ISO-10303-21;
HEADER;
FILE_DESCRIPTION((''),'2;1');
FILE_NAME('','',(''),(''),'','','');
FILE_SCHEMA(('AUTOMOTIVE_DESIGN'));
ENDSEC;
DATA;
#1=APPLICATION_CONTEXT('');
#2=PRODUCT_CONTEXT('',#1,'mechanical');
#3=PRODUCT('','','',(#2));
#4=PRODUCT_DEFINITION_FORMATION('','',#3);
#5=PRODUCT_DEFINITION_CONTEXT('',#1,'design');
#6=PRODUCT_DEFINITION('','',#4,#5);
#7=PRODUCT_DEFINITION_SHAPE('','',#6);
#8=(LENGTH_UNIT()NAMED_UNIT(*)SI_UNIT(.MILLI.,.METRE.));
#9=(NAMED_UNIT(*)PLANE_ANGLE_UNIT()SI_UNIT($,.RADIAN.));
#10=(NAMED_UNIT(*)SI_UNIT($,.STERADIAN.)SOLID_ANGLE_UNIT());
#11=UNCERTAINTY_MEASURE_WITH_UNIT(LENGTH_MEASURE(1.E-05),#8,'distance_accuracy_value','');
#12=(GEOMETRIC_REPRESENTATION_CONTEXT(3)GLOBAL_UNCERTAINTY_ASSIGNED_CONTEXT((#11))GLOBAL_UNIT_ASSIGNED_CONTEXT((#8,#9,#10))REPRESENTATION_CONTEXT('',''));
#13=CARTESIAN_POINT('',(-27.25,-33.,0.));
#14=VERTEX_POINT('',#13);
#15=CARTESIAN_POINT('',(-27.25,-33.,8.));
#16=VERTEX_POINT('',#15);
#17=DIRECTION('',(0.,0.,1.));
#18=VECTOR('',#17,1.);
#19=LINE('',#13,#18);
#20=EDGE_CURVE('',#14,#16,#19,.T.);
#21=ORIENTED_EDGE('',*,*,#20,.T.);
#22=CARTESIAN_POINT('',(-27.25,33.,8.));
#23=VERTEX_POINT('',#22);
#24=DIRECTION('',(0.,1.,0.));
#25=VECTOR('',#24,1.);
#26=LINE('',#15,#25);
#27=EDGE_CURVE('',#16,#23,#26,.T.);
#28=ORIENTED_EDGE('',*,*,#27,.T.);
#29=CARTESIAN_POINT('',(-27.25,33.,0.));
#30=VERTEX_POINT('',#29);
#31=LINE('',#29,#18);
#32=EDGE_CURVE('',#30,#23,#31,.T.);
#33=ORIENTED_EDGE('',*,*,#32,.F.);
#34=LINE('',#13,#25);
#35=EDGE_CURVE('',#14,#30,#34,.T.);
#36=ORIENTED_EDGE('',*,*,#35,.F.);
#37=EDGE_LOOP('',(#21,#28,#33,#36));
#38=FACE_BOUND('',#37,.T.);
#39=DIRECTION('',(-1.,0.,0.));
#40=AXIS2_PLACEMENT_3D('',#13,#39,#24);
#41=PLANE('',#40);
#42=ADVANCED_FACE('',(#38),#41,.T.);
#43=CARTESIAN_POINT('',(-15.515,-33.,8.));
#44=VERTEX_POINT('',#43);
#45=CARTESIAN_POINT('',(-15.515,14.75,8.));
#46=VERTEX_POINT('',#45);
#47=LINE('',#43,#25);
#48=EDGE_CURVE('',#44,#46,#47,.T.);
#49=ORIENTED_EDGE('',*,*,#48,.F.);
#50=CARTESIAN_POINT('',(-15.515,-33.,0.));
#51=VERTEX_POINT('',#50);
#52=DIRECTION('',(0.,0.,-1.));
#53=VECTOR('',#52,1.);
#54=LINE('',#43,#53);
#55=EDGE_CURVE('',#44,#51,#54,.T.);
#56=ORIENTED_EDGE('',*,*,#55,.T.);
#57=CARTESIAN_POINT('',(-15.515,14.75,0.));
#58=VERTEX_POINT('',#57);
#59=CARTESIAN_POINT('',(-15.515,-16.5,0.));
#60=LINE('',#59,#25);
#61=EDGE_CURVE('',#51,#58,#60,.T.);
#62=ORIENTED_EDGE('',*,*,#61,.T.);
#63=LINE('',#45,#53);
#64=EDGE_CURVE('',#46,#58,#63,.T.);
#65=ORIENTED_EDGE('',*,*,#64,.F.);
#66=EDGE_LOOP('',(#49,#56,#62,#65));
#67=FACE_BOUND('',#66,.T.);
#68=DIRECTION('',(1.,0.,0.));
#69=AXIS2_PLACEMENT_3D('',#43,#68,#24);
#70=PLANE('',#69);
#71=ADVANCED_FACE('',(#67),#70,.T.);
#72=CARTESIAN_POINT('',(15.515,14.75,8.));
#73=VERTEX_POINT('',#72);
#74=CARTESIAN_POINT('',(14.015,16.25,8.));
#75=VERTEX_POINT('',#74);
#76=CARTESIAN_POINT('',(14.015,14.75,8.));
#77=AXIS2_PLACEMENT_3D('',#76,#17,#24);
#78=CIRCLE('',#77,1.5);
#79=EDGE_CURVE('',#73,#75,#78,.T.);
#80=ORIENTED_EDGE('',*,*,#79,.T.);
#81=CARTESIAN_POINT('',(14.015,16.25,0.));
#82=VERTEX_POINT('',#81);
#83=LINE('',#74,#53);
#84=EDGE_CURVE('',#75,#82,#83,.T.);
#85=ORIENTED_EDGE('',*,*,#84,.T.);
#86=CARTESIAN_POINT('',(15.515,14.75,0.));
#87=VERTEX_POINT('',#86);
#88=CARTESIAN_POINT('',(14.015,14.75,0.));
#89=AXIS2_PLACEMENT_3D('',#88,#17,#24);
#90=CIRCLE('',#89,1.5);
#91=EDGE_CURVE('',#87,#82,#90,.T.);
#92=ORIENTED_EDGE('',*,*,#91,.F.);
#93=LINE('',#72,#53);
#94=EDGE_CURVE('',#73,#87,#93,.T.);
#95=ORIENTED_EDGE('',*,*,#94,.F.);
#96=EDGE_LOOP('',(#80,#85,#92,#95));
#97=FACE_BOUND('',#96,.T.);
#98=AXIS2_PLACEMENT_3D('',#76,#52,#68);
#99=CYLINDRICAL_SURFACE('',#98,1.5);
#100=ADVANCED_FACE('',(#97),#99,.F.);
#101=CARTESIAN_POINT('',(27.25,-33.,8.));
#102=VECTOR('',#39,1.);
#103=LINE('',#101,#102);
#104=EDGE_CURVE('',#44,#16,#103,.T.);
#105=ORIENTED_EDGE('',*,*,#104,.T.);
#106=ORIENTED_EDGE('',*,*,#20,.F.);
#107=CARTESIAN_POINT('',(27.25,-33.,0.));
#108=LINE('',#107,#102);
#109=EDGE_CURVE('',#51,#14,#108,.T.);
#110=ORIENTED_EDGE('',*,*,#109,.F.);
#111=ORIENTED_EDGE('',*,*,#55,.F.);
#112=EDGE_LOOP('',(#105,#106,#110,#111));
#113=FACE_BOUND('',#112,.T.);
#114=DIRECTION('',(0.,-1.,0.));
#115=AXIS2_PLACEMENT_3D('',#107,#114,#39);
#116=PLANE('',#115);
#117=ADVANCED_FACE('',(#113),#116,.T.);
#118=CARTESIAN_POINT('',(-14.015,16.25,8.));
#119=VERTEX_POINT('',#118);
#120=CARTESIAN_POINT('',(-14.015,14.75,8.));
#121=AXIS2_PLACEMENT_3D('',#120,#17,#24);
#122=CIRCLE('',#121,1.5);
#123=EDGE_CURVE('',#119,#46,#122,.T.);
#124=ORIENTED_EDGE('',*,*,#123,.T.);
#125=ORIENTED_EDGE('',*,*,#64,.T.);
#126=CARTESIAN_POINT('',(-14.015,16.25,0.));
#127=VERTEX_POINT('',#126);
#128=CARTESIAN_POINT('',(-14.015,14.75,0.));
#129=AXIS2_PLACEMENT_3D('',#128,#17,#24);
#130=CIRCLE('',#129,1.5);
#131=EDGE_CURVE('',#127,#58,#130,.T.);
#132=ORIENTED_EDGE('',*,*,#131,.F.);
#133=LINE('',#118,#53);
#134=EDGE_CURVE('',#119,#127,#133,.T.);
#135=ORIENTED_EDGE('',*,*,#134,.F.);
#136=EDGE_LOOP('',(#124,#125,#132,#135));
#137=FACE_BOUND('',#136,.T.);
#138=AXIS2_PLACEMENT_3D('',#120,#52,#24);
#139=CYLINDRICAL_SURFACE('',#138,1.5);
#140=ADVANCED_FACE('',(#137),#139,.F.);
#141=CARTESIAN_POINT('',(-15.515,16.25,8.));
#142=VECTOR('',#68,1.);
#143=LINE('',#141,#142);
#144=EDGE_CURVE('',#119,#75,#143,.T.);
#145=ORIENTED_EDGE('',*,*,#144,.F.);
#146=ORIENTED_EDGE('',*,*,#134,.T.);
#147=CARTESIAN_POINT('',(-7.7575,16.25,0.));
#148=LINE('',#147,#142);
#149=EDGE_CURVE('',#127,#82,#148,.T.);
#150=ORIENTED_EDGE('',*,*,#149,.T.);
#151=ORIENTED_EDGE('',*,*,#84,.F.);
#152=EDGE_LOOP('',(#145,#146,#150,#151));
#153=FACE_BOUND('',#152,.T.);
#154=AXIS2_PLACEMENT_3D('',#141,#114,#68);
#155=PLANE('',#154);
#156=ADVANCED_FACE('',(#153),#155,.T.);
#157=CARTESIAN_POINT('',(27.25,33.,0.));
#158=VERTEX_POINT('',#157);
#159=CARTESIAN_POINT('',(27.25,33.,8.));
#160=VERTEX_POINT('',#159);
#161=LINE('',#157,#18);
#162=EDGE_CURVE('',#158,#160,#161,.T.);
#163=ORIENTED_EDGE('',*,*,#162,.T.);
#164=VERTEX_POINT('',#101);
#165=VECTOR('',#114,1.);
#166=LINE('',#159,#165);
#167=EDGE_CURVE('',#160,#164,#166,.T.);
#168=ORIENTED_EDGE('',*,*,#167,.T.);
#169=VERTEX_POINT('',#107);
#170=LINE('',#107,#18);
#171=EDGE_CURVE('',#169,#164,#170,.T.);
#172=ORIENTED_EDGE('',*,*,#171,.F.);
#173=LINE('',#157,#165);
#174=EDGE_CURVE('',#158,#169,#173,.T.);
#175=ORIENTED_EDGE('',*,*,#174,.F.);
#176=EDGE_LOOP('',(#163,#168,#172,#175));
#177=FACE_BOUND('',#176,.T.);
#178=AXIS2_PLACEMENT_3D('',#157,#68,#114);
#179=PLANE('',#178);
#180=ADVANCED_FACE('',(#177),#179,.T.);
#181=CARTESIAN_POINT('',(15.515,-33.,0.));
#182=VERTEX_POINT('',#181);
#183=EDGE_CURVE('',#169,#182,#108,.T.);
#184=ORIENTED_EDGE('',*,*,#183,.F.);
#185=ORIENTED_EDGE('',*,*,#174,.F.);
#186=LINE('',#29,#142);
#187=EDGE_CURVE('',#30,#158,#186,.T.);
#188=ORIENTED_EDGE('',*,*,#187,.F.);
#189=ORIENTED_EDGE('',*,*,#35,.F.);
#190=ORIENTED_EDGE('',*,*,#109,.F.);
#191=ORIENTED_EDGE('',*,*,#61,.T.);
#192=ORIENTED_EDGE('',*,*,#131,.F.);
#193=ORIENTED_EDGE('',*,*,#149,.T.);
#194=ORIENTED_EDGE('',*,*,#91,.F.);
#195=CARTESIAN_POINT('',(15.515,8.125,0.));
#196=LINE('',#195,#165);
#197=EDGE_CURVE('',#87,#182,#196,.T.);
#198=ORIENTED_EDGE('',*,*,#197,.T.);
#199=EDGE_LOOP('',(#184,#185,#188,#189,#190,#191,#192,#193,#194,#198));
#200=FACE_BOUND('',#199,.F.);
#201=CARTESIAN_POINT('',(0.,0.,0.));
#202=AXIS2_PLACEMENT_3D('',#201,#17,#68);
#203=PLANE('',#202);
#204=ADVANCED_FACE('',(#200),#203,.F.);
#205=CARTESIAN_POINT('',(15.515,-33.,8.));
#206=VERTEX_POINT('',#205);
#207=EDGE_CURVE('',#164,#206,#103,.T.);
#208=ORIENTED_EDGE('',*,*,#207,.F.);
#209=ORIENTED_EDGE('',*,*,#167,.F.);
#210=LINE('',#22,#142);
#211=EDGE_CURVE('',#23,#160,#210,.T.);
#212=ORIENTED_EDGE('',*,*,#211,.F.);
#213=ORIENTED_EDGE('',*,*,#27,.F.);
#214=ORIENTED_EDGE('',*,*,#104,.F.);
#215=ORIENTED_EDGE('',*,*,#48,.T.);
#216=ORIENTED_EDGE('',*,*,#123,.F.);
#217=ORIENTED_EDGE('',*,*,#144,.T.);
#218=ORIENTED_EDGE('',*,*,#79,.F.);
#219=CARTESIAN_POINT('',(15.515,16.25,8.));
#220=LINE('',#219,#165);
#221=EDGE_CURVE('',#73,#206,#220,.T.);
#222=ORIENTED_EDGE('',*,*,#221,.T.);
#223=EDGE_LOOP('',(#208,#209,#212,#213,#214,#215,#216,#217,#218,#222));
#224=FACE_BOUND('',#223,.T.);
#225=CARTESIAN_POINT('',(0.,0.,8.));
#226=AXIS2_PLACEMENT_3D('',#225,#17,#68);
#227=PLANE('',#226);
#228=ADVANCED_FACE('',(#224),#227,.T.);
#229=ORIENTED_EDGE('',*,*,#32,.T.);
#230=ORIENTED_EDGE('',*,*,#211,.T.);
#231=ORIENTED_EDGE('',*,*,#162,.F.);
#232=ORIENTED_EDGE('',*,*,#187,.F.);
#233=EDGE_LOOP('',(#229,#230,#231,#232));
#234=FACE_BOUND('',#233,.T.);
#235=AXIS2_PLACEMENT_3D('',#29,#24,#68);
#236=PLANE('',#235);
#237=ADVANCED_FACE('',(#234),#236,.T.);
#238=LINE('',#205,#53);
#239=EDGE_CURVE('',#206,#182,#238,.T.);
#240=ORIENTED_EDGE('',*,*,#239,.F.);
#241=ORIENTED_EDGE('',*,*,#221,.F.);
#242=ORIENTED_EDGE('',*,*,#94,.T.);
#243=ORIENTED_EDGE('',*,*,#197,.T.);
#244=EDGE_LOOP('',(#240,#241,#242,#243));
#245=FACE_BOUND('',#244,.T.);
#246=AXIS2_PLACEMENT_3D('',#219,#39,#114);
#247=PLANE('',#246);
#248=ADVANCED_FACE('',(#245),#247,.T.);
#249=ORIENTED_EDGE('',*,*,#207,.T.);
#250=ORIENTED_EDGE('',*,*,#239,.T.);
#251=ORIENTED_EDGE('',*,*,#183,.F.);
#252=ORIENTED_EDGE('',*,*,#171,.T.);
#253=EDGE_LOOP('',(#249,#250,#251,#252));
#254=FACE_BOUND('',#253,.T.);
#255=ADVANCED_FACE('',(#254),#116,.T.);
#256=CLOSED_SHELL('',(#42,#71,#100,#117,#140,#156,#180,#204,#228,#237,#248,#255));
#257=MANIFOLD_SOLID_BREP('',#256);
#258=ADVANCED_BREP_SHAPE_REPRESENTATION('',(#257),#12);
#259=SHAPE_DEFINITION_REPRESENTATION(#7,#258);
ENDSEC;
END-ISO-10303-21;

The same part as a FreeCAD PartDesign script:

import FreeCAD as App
import Part
import Sketcher
from FreeCAD import Vector


def edges_at(feature, points):
    """Names of the edges that pass closest to the given points."""
    edges = feature.Shape.Edges
    near = lambda p: min(range(len(edges)), key=lambda i: edges[i].distToShape(Part.Vertex(*p))[0])
    return sorted({f"Edge{near(p) + 1}" for p in points})

doc = App.newDocument("Part")
params = doc.addObject("Spreadsheet::Sheet", "Params")
for row, (alias, value) in enumerate([
    ("sketch1_height", "66 mm"),
    ("sketch1_width", "54.5 mm"),
    ("pad1_length", "8 mm"),
    ("sketch2_width", "31.03 mm"),
    ("sketch2_height", "49.25 mm"),
    ("fillet_radius", "1.5 mm"),
], start=1):
    params.set(f"A{row}", alias)
    params.set(f"B{row}", "=" + value)
    params.setAlias(f"B{row}", alias)

body = doc.addObject("PartDesign::Body", "Body")

# Sketch on XY plane
sketch1 = body.newObject("Sketcher::SketchObject", "Sketch")
sketch1.AttachmentSupport = (doc.getObject("XY_Plane"), [""])
sketch1.MapMode = "FlatFace"
sketch1.addGeometry([
    Part.LineSegment(Vector(27.25, 33, 0), Vector(-27.25, 33, 0)),
    Part.LineSegment(Vector(-27.25, 33, 0), Vector(-27.25, -33, 0)),
    Part.LineSegment(Vector(-27.25, -33, 0), Vector(27.25, -33, 0)),
    Part.LineSegment(Vector(27.25, -33, 0), Vector(27.25, 33, 0)),
], False)
sketch1.addConstraint([
    Sketcher.Constraint("Coincident", 0, 2, 1, 1),
    Sketcher.Constraint("Coincident", 1, 2, 2, 1),
    Sketcher.Constraint("Coincident", 2, 2, 3, 1),
    Sketcher.Constraint("Coincident", 3, 2, 0, 1),
    Sketcher.Constraint("Horizontal", 0),
    Sketcher.Constraint("Vertical", 1),
    Sketcher.Constraint("Horizontal", 2),
    Sketcher.Constraint("Vertical", 3),
    Sketcher.Constraint("Symmetric", 0, 2, 2, 2, -1, 1),
    Sketcher.Constraint("DistanceY", 1, 2, 1, 1, 66.0),
    Sketcher.Constraint("DistanceX", 0, 2, 0, 1, 54.5),
])
sketch1.setExpression("Constraints[9]", "Params.sketch1_height")
sketch1.setExpression("Constraints[10]", "Params.sketch1_width")
pad1 = body.newObject("PartDesign::Pad", "Pad")
pad1.Profile = sketch1
pad1.setExpression("Length", "Params.pad1_length")

# Sketch on XY plane
sketch2 = body.newObject("Sketcher::SketchObject", "Sketch001")
sketch2.AttachmentSupport = (doc.getObject("XY_Plane"), [""])
sketch2.MapMode = "FlatFace"
sketch2.AttachmentOffset = App.Placement(Vector(0, 0, 8), App.Rotation())
sketch2.addGeometry([
    Part.LineSegment(Vector(-15.515, 16.25, 0), Vector(-15.515, -33, 0)),
    Part.LineSegment(Vector(-15.515, -33, 0), Vector(15.515, -33, 0)),
    Part.LineSegment(Vector(15.515, -33, 0), Vector(15.515, 16.25, 0)),
    Part.LineSegment(Vector(15.515, 16.25, 0), Vector(-15.515, 16.25, 0)),
], False)
sketch2.addConstraint([
    Sketcher.Constraint("Coincident", 0, 2, 1, 1),
    Sketcher.Constraint("Coincident", 1, 2, 2, 1),
    Sketcher.Constraint("Coincident", 2, 2, 3, 1),
    Sketcher.Constraint("Coincident", 3, 2, 0, 1),
    Sketcher.Constraint("Vertical", 0),
    Sketcher.Constraint("Horizontal", 1),
    Sketcher.Constraint("Vertical", 2),
    Sketcher.Constraint("Horizontal", 3),
    Sketcher.Constraint("DistanceY", 0, 2, -1, 1, 33.0),
    Sketcher.Constraint("DistanceX", 1, 1, 1, 2, 31.03),
    Sketcher.Constraint("DistanceY", 0, 2, 0, 1, 49.25),
    Sketcher.Constraint("DistanceX", 0, 2, -1, 1, 15.515),
])
sketch2.setExpression("Constraints[9]", "Params.sketch2_width")
sketch2.setExpression("Constraints[10]", "Params.sketch2_height")
pocket1 = body.newObject("PartDesign::Pocket", "Pocket")
pocket1.Profile = sketch2
pocket1.Type = "ThroughAll"
doc.recompute()

fillet = body.newObject("PartDesign::Fillet", "Fillet")
fillet.Base = (pocket1, edges_at(pocket1, [(-15.515, 16.25, 4), (15.515, 16.25, 4)]))
fillet.setExpression("Radius", "Params.fillet_radius")

doc.recompute()
